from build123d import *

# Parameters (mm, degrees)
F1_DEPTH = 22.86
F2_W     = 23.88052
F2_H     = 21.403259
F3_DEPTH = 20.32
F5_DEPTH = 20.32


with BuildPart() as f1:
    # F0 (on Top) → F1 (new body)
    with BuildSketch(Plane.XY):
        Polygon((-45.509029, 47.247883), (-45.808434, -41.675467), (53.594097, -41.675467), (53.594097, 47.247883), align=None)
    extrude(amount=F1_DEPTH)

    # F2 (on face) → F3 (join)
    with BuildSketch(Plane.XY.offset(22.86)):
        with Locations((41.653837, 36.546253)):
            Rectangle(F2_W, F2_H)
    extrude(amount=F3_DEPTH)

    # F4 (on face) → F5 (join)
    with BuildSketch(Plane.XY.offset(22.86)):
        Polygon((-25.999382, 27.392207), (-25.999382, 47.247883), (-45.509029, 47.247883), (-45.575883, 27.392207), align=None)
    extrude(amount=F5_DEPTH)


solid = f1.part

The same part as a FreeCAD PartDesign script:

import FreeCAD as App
import Part
import Sketcher
from FreeCAD import Vector
Q = App.Units.Quantity


def add_polygon(sketch, points):
    """Adds a closed chain of lines whose ends are joined by coincident constraints."""
    first, n = sketch.GeometryCount, len(points)
    for a, b in zip(points, points[1:] + points[:1]):
        sketch.addGeometry(Part.LineSegment(App.Vector(*a, 0), App.Vector(*b, 0)), False)
    for i in range(n):
        sketch.addConstraint(Sketcher.Constraint("Coincident", first + i, 2, first + (i + 1) % n, 1))

doc = App.newDocument("Part")
body = doc.addObject("PartDesign::Body", "Body")

sketch1 = body.newObject("Sketcher::SketchObject", "Sketch")
sketch1.AttachmentSupport = (doc.getObject("XY_Plane"), [""])
sketch1.MapMode = "FlatFace"
add_polygon(sketch1, [(-46, 47), (-46, -42), (54, -42), (54, 47)])
sketch1.addConstraint([
    Sketcher.Constraint("Horizontal", 1),
    Sketcher.Constraint("Vertical", 2),
    Sketcher.Constraint("Horizontal", 3),
    Sketcher.Constraint("DistanceX", 1, 1, 1, 2, Q("99.402531 mm")),
    Sketcher.Constraint("DistanceY", 2, 1, 2, 2, Q("88.92335 mm")),
    Sketcher.Constraint("DistanceX", 3, 2, 3, 1, Q("99.103126 mm")),
    Sketcher.Constraint("DistanceX", 3, 2, -1, 1, Q("45.509029 mm")),
    Sketcher.Constraint("DistanceY", 0, 2, -1, 1, Q("41.675467 mm")),
])
pad1 = body.newObject("PartDesign::Pad", "Pad")
pad1.Profile = sketch1
pad1.Length = Q("0.9 in")

sketch2 = body.newObject("Sketcher::SketchObject", "Sketch001")
sketch2.AttachmentSupport = (doc.getObject("XY_Plane"), [""])
sketch2.MapMode = "FlatFace"
sketch2.AttachmentOffset = App.Placement(Vector(0, 0, 0.9 * 25.4), App.Rotation())
add_polygon(sketch2, [(30, 47), (30, 26), (54, 26), (54, 47)])
sketch2.addConstraint([
    Sketcher.Constraint("Vertical", 0),
    Sketcher.Constraint("Horizontal", 1),
    Sketcher.Constraint("Vertical", 2),
    Sketcher.Constraint("Horizontal", 3),
    Sketcher.Constraint("DistanceX", 1, 1, 1, 2, Q("23.88052 mm")),
    Sketcher.Constraint("DistanceY", 0, 2, 0, 1, Q("21.403259 mm")),
    Sketcher.Constraint("DistanceX", -1, 1, 0, 2, Q("29.713577 mm")),
    Sketcher.Constraint("DistanceY", -1, 1, 0, 2, Q("25.844624 mm")),
])
pad2 = body.newObject("PartDesign::Pad", "Pad001")
pad2.Profile = sketch2
pad2.Length = Q("0.8 in")

sketch3 = body.newObject("Sketcher::SketchObject", "Sketch002")
sketch3.AttachmentSupport = (doc.getObject("XY_Plane"), [""])
sketch3.MapMode = "FlatFace"
sketch3.AttachmentOffset = App.Placement(Vector(0, 0, 0.9 * 25.4), App.Rotation())
add_polygon(sketch3, [(-26, 27), (-26, 47), (-46, 47), (-46, 27)])
sketch3.addConstraint([
    Sketcher.Constraint("Vertical", 0),
    Sketcher.Constraint("Horizontal", 1),
    Sketcher.Constraint("Horizontal", 3),
    Sketcher.Constraint("DistanceX", 3, 1, 3, 2, Q("19.576501 mm")),
    Sketcher.Constraint("Distance", 2, Q("19.855789 mm")),
    Sketcher.Constraint("DistanceX", 1, 2, 1, 1, Q("19.509647 mm")),
    Sketcher.Constraint("DistanceX", 1, 2, -1, 1, Q("45.509029 mm")),
    Sketcher.Constraint("DistanceY", -1, 1, 0, 2, Q("47.247883 mm")),
])
pad3 = body.newObject("PartDesign::Pad", "Pad002")
pad3.Profile = sketch3
pad3.Length = Q("0.8 in")

doc.recompute()
